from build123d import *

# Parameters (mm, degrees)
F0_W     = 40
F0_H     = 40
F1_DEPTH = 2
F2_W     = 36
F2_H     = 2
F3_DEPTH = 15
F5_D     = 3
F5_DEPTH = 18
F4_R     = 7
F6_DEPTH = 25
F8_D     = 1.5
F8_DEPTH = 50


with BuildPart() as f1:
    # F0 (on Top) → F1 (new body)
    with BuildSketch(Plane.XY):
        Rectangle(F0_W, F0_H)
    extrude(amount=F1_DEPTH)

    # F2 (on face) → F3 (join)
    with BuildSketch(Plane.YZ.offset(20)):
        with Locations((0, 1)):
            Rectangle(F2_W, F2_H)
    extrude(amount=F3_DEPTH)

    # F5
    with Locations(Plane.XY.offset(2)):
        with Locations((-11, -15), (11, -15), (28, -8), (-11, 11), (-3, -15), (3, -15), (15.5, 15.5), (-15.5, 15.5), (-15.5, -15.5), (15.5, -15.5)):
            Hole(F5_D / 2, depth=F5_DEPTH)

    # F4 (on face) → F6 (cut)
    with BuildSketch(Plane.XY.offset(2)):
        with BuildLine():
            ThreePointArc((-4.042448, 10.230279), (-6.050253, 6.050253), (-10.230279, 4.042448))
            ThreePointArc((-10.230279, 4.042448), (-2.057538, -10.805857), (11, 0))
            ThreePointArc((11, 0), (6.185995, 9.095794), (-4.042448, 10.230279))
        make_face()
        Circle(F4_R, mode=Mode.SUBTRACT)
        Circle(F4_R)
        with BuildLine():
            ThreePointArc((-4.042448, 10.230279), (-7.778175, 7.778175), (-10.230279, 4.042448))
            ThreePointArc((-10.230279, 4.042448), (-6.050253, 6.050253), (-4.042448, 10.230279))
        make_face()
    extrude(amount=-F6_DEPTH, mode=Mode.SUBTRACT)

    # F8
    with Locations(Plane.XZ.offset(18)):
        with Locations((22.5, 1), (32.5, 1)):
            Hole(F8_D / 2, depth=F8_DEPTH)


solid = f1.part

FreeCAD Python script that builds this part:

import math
import FreeCAD as App
import Part
import Sketcher

V = App.Vector


def add_polygon(sketch, points):
    """Adds a closed chain of lines whose ends are joined by coincident constraints."""
    first, n = sketch.GeometryCount, len(points)
    for a, b in zip(points, points[1:] + points[:1]):
        sketch.addGeometry(Part.LineSegment(App.Vector(*a, 0), App.Vector(*b, 0)), False)
    for i in range(n):
        sketch.addConstraint(Sketcher.Constraint("Coincident", first + i, 2, first + (i + 1) % n, 1))

doc = App.newDocument("Part")
body = doc.addObject("PartDesign::Body", "Body")

# Sketch on XY plane
sketch1 = body.newObject("Sketcher::SketchObject", "Sketch")
sketch1.AttachmentSupport = (doc.getObject("XY_Plane"), [""])
sketch1.MapMode = "FlatFace"
add_polygon(sketch1, [(-20, 20), (-20, -20), (20, -20), (20, 20)])  # lines 0-3
sketch1.addConstraint(Sketcher.Constraint("Vertical", 0))
sketch1.addConstraint(Sketcher.Constraint("Horizontal", 1))
sketch1.addConstraint(Sketcher.Constraint("Vertical", 2))
sketch1.addConstraint(Sketcher.Constraint("Horizontal", 3))
sketch1.addConstraint(Sketcher.Constraint("Symmetric", 0, 2, 2, 2, -1, 1))
sketch1.addConstraint(Sketcher.Constraint("Equal", 3, 0))
sketch1.addConstraint(Sketcher.Constraint("DistanceX", 1, 1, 1, 2, 40.0))
pad1 = body.newObject("PartDesign::Pad", "Pad")
pad1.Profile = sketch1
pad1.Length = 2

# Sketch on YZ plane
sketch2 = body.newObject("Sketcher::SketchObject", "Sketch001")
sketch2.AttachmentSupport = (doc.getObject("YZ_Plane"), [""])
sketch2.MapMode = "FlatFace"
sketch2.AttachmentOffset = App.Placement(V(0, 0, 20), App.Rotation())
add_polygon(sketch2, [(-18, 2), (-18, 0), (18, 0), (18, 2)])  # lines 0-3
sketch2.addConstraint(Sketcher.Constraint("Vertical", 0))
sketch2.addConstraint(Sketcher.Constraint("Horizontal", 1))
sketch2.addConstraint(Sketcher.Constraint("Vertical", 2))
sketch2.addConstraint(Sketcher.Constraint("Horizontal", 3))
sketch2.addConstraint(Sketcher.Constraint("Symmetric", 0, 2, 1, 2, -1, 1))
sketch2.addConstraint(Sketcher.Constraint("DistanceX", 1, 1, 1, 2, 36.0))
sketch2.addConstraint(Sketcher.Constraint("DistanceY", 0, 2, 0, 1, 2.0))
pad2 = body.newObject("PartDesign::Pad", "Pad001")
pad2.Profile = sketch2
pad2.Length = 15

# Sketch on XY plane
sketch3 = body.newObject("Sketcher::SketchObject", "Sketch002")
sketch3.AttachmentSupport = (doc.getObject("XY_Plane"), [""])
sketch3.MapMode = "FlatFace"
sketch3.AttachmentOffset = App.Placement(V(0, 0, 2), App.Rotation())
sketch3.addGeometry(Part.Circle(V(-11, -15, 0), V(0, 0, 1), 1.5), False)
sketch3.addGeometry(Part.Circle(V(11, -15, 0), V(0, 0, 1), 1.5), False)
sketch3.addGeometry(Part.Circle(V(28, -8, 0), V(0, 0, 1), 1.5), False)
sketch3.addGeometry(Part.Circle(V(-11, 11, 0), V(0, 0, 1), 1.5), False)
sketch3.addGeometry(Part.Circle(V(-3, -15, 0), V(0, 0, 1), 1.5), False)
sketch3.addGeometry(Part.Circle(V(3, -15, 0), V(0, 0, 1), 1.5), False)
sketch3.addGeometry(Part.Circle(V(15.5, 15.5, 0), V(0, 0, 1), 1.5), False)
sketch3.addGeometry(Part.Circle(V(-15.5, 15.5, 0), V(0, 0, 1), 1.5), False)
sketch3.addGeometry(Part.Circle(V(-15.5, -15.5, 0), V(0, 0, 1), 1.5), False)
sketch3.addGeometry(Part.Circle(V(15.5, -15.5, 0), V(0, 0, 1), 1.5), False)
sketch3.addConstraint(Sketcher.Constraint("Equal", 0, 1))
sketch3.addConstraint(Sketcher.Constraint("Equal", 1, 2))
sketch3.addConstraint(Sketcher.Constraint("Equal", 2, 3))
sketch3.addConstraint(Sketcher.Constraint("Equal", 3, 4))
sketch3.addConstraint(Sketcher.Constraint("Equal", 4, 5))
sketch3.addConstraint(Sketcher.Constraint("Equal", 5, 6))
sketch3.addConstraint(Sketcher.Constraint("Equal", 6, 7))
sketch3.addConstraint(Sketcher.Constraint("Equal", 7, 8))
sketch3.addConstraint(Sketcher.Constraint("Equal", 8, 9))
sketch3.addConstraint(Sketcher.Constraint("Symmetric", 6, 3, 8, 3, -1, 1))
sketch3.addConstraint(Sketcher.Constraint("Symmetric", 7, 3, 9, 3, -1, 1))
sketch3.addConstraint(Sketcher.Constraint("Symmetric", 0, 3, 1, 3, -2))
sketch3.addConstraint(Sketcher.Constraint("Symmetric", 4, 3, 5, 3, -2))
sketch3.addConstraint(Sketcher.Constraint("Symmetric", 6, 3, 7, 3, -2))
sketch3.addConstraint(Sketcher.Constraint("Horizontal", 1, 3, 4, 3))
sketch3.addConstraint(Sketcher.Constraint("Vertical", 0, 3, 3, 3))
sketch3.addConstraint(Sketcher.Constraint("Diameter", 0, 3.0))
sketch3.addConstraint(Sketcher.Constraint("DistanceX", 0, 3, -1, 1, 11.0))
sketch3.addConstraint(Sketcher.Constraint("DistanceY", 0, 3, -1, 1, 15.0))
sketch3.addConstraint(Sketcher.Constraint("DistanceX", -1, 1, 2, 3, 28.0))
sketch3.addConstraint(Sketcher.Constraint("DistanceY", 2, 3, -1, 1, 8.0))
sketch3.addConstraint(Sketcher.Constraint("DistanceY", -1, 1, 3, 3, 11.0))
sketch3.addConstraint(Sketcher.Constraint("DistanceX", 4, 3, -1, 1, 3.0))
sketch3.addConstraint(Sketcher.Constraint("DistanceX", 7, 3, 6, 3, 31.0))
sketch3.addConstraint(Sketcher.Constraint("DistanceY", -1, 1, 6, 3, 15.5))
doc.recompute()
hole = body.newObject("PartDesign::Hole", "Hole")
hole.Profile = sketch3
hole.ThreadType = "None"
hole.Diameter = 3
hole.DepthType = "Dimension"
hole.Depth = 18
hole.DrillPoint = "Flat"

# Sketch on XY plane
sketch4 = body.newObject("Sketcher::SketchObject", "Sketch003")
sketch4.AttachmentSupport = (doc.getObject("XY_Plane"), [""])
sketch4.MapMode = "FlatFace"
sketch4.AttachmentOffset = App.Placement(V(0, 0, 2), App.Rotation())
sketch4.addGeometry(Part.ArcOfCircle(Part.Circle(V(0, 0, 0), V(0, 0, 1), 11), math.radians(158), math.radians(360)), False)
sketch4.addGeometry(Part.ArcOfCircle(Part.Circle(V(0, 0, 0), V(0, 0, 1), 11), math.radians(0), math.radians(112)), False)
sketch4.addGeometry(Part.ArcOfCircle(Part.Circle(V(0, 0, 0), V(0, 0, 1), 11), math.radians(112), math.radians(158)), False)
sketch4.addConstraint(Sketcher.Constraint("Tangent", 0, 2, 1, 1))
sketch4.addConstraint(Sketcher.Constraint("Tangent", 1, 2, 2, 1))
sketch4.addConstraint(Sketcher.Constraint("Tangent", 2, 2, 0, 1))
sketch4.addConstraint(Sketcher.Constraint("Coincident", 0, 3, -1, 1))
sketch4.addConstraint(Sketcher.Constraint("PointOnObject", 0, 2, -1))
sketch4.addConstraint(Sketcher.Constraint("Radius", 0, 11.0))
sketch4.addConstraint(Sketcher.Constraint("DistanceX", 1, 2, -1, 1, 4.042448))
sketch4.addConstraint(Sketcher.Constraint("DistanceX", 2, 2, -1, 1, 10.230279))
pocket1 = body.newObject("PartDesign::Pocket", "Pocket")
pocket1.Profile = sketch4
pocket1.Length = 25

# Sketch on XZ plane
sketch5 = body.newObject("Sketcher::SketchObject", "Sketch004")
sketch5.AttachmentSupport = (doc.getObject("XZ_Plane"), [""])
sketch5.MapMode = "FlatFace"
sketch5.AttachmentOffset = App.Placement(V(0, 0, 18), App.Rotation())
sketch5.addGeometry(Part.Circle(V(22.5, 1, 0), V(0, 0, 1), 0.8), False)
sketch5.addGeometry(Part.Circle(V(32.5, 1, 0), V(0, 0, 1), 0.8), False)
sketch5.addConstraint(Sketcher.Constraint("Equal", 0, 1))
sketch5.addConstraint(Sketcher.Constraint("Horizontal", 0, 3, 1, 3))
sketch5.addConstraint(Sketcher.Constraint("Diameter", 0, 1.5))
sketch5.addConstraint(Sketcher.Constraint("DistanceY", -1, 1, 0, 3, 1.0))
sketch5.addConstraint(Sketcher.Constraint("DistanceX", 0, 3, 1, 3, 10.0))
sketch5.addConstraint(Sketcher.Constraint("DistanceX", -1, 1, 0, 3, 22.5))
doc.recompute()
hole2 = body.newObject("PartDesign::Hole", "Hole001")
hole2.Profile = sketch5
hole2.ThreadType = "None"
hole2.Diameter = 1.5
hole2.DepthType = "Dimension"
hole2.Depth = 50
hole2.DrillPoint = "Flat"

doc.recompute()
